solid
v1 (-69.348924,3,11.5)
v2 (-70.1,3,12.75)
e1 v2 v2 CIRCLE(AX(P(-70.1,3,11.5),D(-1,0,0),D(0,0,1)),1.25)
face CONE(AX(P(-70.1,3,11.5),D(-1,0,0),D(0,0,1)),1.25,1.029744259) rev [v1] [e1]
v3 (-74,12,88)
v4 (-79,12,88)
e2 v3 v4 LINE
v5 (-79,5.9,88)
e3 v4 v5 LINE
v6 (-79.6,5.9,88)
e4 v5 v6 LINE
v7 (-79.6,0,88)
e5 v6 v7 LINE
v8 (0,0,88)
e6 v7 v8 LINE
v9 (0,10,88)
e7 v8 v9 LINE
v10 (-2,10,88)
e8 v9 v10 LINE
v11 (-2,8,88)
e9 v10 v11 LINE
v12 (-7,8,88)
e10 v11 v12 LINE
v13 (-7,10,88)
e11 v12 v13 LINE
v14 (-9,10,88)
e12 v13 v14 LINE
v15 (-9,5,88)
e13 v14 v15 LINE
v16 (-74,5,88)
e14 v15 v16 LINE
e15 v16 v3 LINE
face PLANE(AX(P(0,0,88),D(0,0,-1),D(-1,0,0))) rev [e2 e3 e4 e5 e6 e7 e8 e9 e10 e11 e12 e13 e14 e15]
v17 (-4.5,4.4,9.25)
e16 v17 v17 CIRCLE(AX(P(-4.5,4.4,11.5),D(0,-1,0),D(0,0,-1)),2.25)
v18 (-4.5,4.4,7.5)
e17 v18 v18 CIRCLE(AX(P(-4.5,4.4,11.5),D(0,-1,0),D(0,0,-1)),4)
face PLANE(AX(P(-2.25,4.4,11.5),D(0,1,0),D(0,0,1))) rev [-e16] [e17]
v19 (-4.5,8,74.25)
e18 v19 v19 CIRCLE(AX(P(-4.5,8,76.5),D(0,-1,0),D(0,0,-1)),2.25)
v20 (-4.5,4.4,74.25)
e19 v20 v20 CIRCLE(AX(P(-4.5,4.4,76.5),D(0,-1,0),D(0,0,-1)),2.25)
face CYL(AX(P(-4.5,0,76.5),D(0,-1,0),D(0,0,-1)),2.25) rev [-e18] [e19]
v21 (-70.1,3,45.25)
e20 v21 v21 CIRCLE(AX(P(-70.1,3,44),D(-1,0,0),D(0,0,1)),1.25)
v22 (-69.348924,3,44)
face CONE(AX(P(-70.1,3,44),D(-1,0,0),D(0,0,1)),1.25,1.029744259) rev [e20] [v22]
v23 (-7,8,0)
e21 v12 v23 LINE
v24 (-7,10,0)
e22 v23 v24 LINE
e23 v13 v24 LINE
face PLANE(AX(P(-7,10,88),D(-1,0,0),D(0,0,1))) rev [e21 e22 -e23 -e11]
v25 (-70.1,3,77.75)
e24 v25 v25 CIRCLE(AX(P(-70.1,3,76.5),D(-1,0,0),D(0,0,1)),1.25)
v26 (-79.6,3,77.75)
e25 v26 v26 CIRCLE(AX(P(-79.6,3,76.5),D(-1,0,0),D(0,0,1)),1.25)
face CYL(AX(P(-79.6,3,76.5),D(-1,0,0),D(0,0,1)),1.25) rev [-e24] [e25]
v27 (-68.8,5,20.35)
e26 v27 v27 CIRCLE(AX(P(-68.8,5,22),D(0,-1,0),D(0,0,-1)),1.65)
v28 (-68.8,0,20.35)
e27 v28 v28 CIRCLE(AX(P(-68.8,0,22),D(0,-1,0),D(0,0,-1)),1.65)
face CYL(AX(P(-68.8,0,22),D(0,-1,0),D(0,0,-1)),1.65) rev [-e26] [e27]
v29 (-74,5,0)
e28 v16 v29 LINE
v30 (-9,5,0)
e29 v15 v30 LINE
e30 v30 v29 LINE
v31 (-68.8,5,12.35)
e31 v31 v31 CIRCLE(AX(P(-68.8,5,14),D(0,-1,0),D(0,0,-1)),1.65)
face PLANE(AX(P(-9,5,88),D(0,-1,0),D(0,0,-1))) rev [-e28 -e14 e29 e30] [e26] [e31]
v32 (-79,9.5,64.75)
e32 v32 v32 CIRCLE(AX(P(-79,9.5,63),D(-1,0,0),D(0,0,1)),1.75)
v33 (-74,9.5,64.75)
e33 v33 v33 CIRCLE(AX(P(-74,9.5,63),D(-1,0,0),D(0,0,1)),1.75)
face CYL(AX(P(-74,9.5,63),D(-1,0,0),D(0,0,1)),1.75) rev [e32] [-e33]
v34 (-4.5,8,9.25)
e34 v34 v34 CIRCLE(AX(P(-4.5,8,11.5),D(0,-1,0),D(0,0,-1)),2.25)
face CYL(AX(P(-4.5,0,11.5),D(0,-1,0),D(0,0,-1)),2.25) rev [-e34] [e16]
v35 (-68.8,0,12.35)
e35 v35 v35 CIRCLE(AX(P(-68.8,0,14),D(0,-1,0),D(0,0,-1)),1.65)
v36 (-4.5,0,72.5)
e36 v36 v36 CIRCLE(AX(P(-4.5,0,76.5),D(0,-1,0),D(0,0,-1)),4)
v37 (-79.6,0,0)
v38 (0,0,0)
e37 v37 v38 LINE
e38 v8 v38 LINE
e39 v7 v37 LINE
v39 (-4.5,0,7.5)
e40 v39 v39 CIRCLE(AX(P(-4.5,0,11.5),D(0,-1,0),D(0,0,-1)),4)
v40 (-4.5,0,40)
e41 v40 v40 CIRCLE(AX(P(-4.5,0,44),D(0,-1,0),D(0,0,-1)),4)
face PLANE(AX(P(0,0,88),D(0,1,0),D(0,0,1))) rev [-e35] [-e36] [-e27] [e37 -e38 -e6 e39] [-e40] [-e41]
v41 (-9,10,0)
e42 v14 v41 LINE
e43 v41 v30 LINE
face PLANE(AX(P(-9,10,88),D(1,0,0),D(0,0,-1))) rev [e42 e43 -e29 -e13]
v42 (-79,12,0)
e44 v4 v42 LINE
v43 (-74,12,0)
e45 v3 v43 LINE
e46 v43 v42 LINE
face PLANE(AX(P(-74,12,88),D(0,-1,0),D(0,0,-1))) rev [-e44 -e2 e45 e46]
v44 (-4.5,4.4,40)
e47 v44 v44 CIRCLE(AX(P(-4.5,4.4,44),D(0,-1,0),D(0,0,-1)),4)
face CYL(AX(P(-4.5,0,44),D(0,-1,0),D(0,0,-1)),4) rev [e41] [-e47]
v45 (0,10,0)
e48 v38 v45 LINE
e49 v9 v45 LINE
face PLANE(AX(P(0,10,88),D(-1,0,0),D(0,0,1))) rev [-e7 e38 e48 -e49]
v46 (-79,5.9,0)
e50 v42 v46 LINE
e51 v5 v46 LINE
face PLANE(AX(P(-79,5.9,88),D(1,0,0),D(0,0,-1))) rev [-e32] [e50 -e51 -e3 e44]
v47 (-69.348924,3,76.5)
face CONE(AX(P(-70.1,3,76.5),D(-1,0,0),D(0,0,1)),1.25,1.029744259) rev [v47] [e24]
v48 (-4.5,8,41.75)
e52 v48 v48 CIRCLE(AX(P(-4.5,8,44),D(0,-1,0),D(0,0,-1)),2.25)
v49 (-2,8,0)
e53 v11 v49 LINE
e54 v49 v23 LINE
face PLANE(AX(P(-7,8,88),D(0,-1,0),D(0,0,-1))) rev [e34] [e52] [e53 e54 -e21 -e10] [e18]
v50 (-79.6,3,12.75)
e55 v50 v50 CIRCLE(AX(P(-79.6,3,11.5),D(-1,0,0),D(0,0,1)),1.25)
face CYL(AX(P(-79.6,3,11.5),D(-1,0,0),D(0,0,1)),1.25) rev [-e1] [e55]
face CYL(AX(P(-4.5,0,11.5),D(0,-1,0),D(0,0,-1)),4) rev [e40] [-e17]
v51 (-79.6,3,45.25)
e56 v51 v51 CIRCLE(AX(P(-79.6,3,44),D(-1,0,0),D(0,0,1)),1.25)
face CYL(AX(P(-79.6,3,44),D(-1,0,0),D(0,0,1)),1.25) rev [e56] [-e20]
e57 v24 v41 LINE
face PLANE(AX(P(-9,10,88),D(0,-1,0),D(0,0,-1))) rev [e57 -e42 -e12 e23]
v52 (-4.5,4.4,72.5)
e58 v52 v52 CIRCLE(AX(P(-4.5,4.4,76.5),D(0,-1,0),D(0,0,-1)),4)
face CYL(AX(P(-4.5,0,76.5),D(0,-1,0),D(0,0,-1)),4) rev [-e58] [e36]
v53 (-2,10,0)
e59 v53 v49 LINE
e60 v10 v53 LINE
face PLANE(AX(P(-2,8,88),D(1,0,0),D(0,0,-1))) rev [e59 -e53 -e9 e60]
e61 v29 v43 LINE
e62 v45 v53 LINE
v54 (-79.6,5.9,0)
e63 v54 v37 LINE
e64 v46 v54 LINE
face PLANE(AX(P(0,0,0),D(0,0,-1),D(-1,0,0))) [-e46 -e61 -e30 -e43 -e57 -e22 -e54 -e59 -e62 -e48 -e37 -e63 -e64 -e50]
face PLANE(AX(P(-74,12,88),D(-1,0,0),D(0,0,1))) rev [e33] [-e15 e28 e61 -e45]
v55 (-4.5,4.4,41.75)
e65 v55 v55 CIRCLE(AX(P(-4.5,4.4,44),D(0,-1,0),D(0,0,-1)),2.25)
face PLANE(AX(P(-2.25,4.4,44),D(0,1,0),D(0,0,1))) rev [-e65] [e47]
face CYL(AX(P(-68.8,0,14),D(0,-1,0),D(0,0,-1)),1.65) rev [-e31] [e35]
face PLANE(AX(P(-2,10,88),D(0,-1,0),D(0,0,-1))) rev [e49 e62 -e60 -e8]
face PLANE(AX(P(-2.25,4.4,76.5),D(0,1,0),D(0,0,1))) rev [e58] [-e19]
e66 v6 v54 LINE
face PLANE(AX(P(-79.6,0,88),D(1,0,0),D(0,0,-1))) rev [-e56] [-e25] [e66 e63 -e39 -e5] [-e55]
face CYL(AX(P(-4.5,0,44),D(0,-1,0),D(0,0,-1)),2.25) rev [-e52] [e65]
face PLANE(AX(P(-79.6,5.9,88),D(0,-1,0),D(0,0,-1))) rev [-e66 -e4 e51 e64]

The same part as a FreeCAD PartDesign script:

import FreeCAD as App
import Part
import Sketcher

V = App.Vector
Q = App.Units.Quantity


def add_polygon(sketch, points):
    """Adds a closed chain of lines whose ends are joined by coincident constraints."""
    first, n = sketch.GeometryCount, len(points)
    for a, b in zip(points, points[1:] + points[:1]):
        sketch.addGeometry(Part.LineSegment(App.Vector(*a, 0), App.Vector(*b, 0)), False)
    for i in range(n):
        sketch.addConstraint(Sketcher.Constraint("Coincident", first + i, 2, first + (i + 1) % n, 1))

doc = App.newDocument("Part")
body = doc.addObject("PartDesign::Body", "Body")

sketch1 = doc.addObject("Sketcher::SketchObject", "Sketch")
body.addObject(sketch1)
sketch1.AttachmentSupport = (doc.XY_Plane, [""])
sketch1.MapMode = "FlatFace"
add_polygon(sketch1, [(-9, 10), (-9, 5), (-74, 5), (-74, 12), (-79, 12), (-79, 5.9), (-79.6, 5.9), (-79.6, 0), (0, 0), (0, 10), (-2, 10), (-2, 8), (-7, 8), (-7, 10)])
sketch1.addConstraint(Sketcher.Constraint("Vertical", 0))
sketch1.addConstraint(Sketcher.Constraint("Horizontal", 1))
sketch1.addConstraint(Sketcher.Constraint("Vertical", 2))
sketch1.addConstraint(Sketcher.Constraint("Horizontal", 3))
sketch1.addConstraint(Sketcher.Constraint("Vertical", 4))
sketch1.addConstraint(Sketcher.Constraint("Horizontal", 5))
sketch1.addConstraint(Sketcher.Constraint("Vertical", 6))
sketch1.addConstraint(Sketcher.Constraint("Horizontal", 7))
sketch1.addConstraint(Sketcher.Constraint("Vertical", 8))
sketch1.addConstraint(Sketcher.Constraint("Horizontal", 9))
sketch1.addConstraint(Sketcher.Constraint("Vertical", 10))
sketch1.addConstraint(Sketcher.Constraint("Horizontal", 11))
sketch1.addConstraint(Sketcher.Constraint("Vertical", 12))
sketch1.addConstraint(Sketcher.Constraint("Horizontal", 13))
sketch1.addConstraint(Sketcher.Constraint("Coincident", 7, 2, -1, 1))
sketch1.addConstraint(Sketcher.Constraint("Horizontal", 9, 2, 12, 2))
sketch1.addConstraint(Sketcher.Constraint("Equal", 3, 11))
sketch1.addConstraint(Sketcher.Constraint("Equal", 9, 13))
sketch1.addConstraint(Sketcher.Constraint("Equal", 11, 0))
sketch1.addConstraint(Sketcher.Constraint("Equal", 13, 10))
sketch1.addConstraint(Sketcher.Constraint("DistanceX", 1, 2, 1, 1, Q("65 mm")))
sketch1.addConstraint(Sketcher.Constraint("DistanceX", 3, 2, 3, 1, Q("5 mm")))
sketch1.addConstraint(Sketcher.Constraint("DistanceX", 9, 2, 9, 1, Q("2 mm")))
sketch1.addConstraint(Sketcher.Constraint("DistanceY", 2, 1, 2, 2, Q("7 mm")))
sketch1.addConstraint(Sketcher.Constraint("DistanceY", 8, 1, 8, 2, Q("10 mm")))
sketch1.addConstraint(Sketcher.Constraint("DistanceX", 5, 2, 5, 1, Q("0.6 mm")))
sketch1.addConstraint(Sketcher.Constraint("DistanceY", 4, 2, 4, 1, Q("6.1 mm")))
pad1 = doc.addObject("PartDesign::Pad", "Pad")
body.addObject(pad1)
pad1.Profile = sketch1
pad1.Length = 88

sketch2 = doc.addObject("Sketcher::SketchObject", "Sketch001")
body.addObject(sketch2)
sketch2.AttachmentSupport = (doc.XZ_Plane, [""])
sketch2.MapMode = "FlatFace"
sketch2.addGeometry(Part.Circle(V(-4.5, 11.5, 0), V(0, 0, 1), 2.2), False)
sketch2.addGeometry(Part.Circle(V(-4.5, 44, 0), V(0, 0, 1), 2.2), False)
sketch2.addGeometry(Part.Circle(V(-4.5, 76.5, 0), V(0, 0, 1), 2.2), False)
sketch2.addConstraint(Sketcher.Constraint("Equal", 0, 1))
sketch2.addConstraint(Sketcher.Constraint("Equal", 1, 2))
sketch2.addConstraint(Sketcher.Constraint("Vertical", 0, 3, 1, 3))
sketch2.addConstraint(Sketcher.Constraint("Vertical", 1, 3, 2, 3))
sketch2.addConstraint(Sketcher.Constraint("Diameter", 0, Q("4.5 mm")))
sketch2.addConstraint(Sketcher.Constraint("DistanceY", -1, 1, 1, 3, Q("44 mm")))
sketch2.addConstraint(Sketcher.Constraint("DistanceY", 0, 3, 2, 3, Q("65 mm")))
sketch2.addConstraint(Sketcher.Constraint("DistanceX", 0, 3, -1, 1, Q("4.5 mm")))
sketch2.addConstraint(Sketcher.Constraint("DistanceY", -1, 1, 0, 3, Q("11.5 mm")))
doc.recompute()
hole = doc.addObject("PartDesign::Hole", "Hole")
body.addObject(hole)
hole.Profile = sketch2
hole.ThreadType = "None"
hole.Diameter = 4.5
hole.DepthType = "ThroughAll"
hole.HoleCutType = "Counterbore"
hole.HoleCutDiameter = 8
hole.HoleCutDepth = 4.4

sketch3 = doc.addObject("Sketcher::SketchObject", "Sketch002")
body.addObject(sketch3)
sketch3.AttachmentSupport = (doc.XZ_Plane, [""])
sketch3.MapMode = "FlatFace"
sketch3.addGeometry(Part.Circle(V(-68.8, 14, 0), V(0, 0, 1), 1.6), False)
sketch3.addGeometry(Part.Circle(V(-68.8, 22, 0), V(0, 0, 1), 1.6), False)
sketch3.addConstraint(Sketcher.Constraint("Equal", 0, 1))
sketch3.addConstraint(Sketcher.Constraint("Vertical", 0, 3, 1, 3))
sketch3.addConstraint(Sketcher.Constraint("Diameter", 0, Q("3.3 mm")))
sketch3.addConstraint(Sketcher.Constraint("DistanceY", -1, 1, 0, 3, Q("14 mm")))
sketch3.addConstraint(Sketcher.Constraint("DistanceY", -1, 1, 1, 3, Q("22 mm")))
sketch3.addConstraint(Sketcher.Constraint("DistanceX", 0, 3, -1, 1, Q("68.8 mm")))
doc.recompute()
hole2 = doc.addObject("PartDesign::Hole", "Hole001")
body.addObject(hole2)
hole2.Profile = sketch3
hole2.ThreadType = "None"
hole2.Diameter = 3.3
hole2.DepthType = "ThroughAll"

sketch4 = doc.addObject("Sketcher::SketchObject", "Sketch003")
body.addObject(sketch4)
sketch4.AttachmentSupport = (doc.YZ_Plane, [""])
sketch4.MapMode = "FlatFace"
sketch4.AttachmentOffset = App.Placement(V(0, 0, -79.6), App.Rotation())
sketch4.addGeometry(Part.Circle(V(3, 11.5, 0), V(0, 0, 1), 1.2), False)
sketch4.addGeometry(Part.Circle(V(3, 44, 0), V(0, 0, 1), 1.2), False)
sketch4.addGeometry(Part.Circle(V(3, 76.5, 0), V(0, 0, 1), 1.2), False)
sketch4.addConstraint(Sketcher.Constraint("Equal", 0, 1))
sketch4.addConstraint(Sketcher.Constraint("Equal", 1, 2))
sketch4.addConstraint(Sketcher.Constraint("Vertical", 0, 3, 1, 3))
sketch4.addConstraint(Sketcher.Constraint("Vertical", 1, 3, 2, 3))
sketch4.addConstraint(Sketcher.Constraint("Diameter", 0, Q("2.5 mm")))
sketch4.addConstraint(Sketcher.Constraint("DistanceX", -1, 1, 0, 3, Q("3 mm")))
sketch4.addConstraint(Sketcher.Constraint("DistanceY", -1, 1, 1, 3, Q("44 mm")))
sketch4.addConstraint(Sketcher.Constraint("DistanceY", 0, 3, 2, 3, Q("65 mm")))
sketch4.addConstraint(Sketcher.Constraint("DistanceY", -1, 1, 0, 3, Q("11.5 mm")))
doc.recompute()
hole3 = doc.addObject("PartDesign::Hole", "Hole002")
body.addObject(hole3)
hole3.Profile = sketch4
hole3.ThreadType = "None"
hole3.Diameter = 2.5
hole3.DepthType = "Dimension"
hole3.Depth = 9.5
hole3.DrillPoint = "Angled"
hole3.DrillPointAngle = 118
hole3.Reversed = True

sketch5 = doc.addObject("Sketcher::SketchObject", "Sketch004")
body.addObject(sketch5)
sketch5.AttachmentSupport = (doc.YZ_Plane, [""])
sketch5.MapMode = "FlatFace"
sketch5.AttachmentOffset = App.Placement(V(0, 0, -79), App.Rotation())
sketch5.addGeometry(Part.Circle(V(9.5, 63, 0), V(0, 0, 1), 1.8), False)
sketch5.addConstraint(Sketcher.Constraint("Diameter", 0, Q("3.5 mm")))
sketch5.addConstraint(Sketcher.Constraint("DistanceY", -1, 1, 0, 3, Q("63 mm")))
sketch5.addConstraint(Sketcher.Constraint("DistanceX", -1, 1, 0, 3, Q("9.5 mm")))
pocket1 = doc.addObject("PartDesign::Pocket", "Pocket")
body.addObject(pocket1)
pocket1.Profile = sketch5
pocket1.Length = 5
pocket1.Reversed = True

doc.recompute()
